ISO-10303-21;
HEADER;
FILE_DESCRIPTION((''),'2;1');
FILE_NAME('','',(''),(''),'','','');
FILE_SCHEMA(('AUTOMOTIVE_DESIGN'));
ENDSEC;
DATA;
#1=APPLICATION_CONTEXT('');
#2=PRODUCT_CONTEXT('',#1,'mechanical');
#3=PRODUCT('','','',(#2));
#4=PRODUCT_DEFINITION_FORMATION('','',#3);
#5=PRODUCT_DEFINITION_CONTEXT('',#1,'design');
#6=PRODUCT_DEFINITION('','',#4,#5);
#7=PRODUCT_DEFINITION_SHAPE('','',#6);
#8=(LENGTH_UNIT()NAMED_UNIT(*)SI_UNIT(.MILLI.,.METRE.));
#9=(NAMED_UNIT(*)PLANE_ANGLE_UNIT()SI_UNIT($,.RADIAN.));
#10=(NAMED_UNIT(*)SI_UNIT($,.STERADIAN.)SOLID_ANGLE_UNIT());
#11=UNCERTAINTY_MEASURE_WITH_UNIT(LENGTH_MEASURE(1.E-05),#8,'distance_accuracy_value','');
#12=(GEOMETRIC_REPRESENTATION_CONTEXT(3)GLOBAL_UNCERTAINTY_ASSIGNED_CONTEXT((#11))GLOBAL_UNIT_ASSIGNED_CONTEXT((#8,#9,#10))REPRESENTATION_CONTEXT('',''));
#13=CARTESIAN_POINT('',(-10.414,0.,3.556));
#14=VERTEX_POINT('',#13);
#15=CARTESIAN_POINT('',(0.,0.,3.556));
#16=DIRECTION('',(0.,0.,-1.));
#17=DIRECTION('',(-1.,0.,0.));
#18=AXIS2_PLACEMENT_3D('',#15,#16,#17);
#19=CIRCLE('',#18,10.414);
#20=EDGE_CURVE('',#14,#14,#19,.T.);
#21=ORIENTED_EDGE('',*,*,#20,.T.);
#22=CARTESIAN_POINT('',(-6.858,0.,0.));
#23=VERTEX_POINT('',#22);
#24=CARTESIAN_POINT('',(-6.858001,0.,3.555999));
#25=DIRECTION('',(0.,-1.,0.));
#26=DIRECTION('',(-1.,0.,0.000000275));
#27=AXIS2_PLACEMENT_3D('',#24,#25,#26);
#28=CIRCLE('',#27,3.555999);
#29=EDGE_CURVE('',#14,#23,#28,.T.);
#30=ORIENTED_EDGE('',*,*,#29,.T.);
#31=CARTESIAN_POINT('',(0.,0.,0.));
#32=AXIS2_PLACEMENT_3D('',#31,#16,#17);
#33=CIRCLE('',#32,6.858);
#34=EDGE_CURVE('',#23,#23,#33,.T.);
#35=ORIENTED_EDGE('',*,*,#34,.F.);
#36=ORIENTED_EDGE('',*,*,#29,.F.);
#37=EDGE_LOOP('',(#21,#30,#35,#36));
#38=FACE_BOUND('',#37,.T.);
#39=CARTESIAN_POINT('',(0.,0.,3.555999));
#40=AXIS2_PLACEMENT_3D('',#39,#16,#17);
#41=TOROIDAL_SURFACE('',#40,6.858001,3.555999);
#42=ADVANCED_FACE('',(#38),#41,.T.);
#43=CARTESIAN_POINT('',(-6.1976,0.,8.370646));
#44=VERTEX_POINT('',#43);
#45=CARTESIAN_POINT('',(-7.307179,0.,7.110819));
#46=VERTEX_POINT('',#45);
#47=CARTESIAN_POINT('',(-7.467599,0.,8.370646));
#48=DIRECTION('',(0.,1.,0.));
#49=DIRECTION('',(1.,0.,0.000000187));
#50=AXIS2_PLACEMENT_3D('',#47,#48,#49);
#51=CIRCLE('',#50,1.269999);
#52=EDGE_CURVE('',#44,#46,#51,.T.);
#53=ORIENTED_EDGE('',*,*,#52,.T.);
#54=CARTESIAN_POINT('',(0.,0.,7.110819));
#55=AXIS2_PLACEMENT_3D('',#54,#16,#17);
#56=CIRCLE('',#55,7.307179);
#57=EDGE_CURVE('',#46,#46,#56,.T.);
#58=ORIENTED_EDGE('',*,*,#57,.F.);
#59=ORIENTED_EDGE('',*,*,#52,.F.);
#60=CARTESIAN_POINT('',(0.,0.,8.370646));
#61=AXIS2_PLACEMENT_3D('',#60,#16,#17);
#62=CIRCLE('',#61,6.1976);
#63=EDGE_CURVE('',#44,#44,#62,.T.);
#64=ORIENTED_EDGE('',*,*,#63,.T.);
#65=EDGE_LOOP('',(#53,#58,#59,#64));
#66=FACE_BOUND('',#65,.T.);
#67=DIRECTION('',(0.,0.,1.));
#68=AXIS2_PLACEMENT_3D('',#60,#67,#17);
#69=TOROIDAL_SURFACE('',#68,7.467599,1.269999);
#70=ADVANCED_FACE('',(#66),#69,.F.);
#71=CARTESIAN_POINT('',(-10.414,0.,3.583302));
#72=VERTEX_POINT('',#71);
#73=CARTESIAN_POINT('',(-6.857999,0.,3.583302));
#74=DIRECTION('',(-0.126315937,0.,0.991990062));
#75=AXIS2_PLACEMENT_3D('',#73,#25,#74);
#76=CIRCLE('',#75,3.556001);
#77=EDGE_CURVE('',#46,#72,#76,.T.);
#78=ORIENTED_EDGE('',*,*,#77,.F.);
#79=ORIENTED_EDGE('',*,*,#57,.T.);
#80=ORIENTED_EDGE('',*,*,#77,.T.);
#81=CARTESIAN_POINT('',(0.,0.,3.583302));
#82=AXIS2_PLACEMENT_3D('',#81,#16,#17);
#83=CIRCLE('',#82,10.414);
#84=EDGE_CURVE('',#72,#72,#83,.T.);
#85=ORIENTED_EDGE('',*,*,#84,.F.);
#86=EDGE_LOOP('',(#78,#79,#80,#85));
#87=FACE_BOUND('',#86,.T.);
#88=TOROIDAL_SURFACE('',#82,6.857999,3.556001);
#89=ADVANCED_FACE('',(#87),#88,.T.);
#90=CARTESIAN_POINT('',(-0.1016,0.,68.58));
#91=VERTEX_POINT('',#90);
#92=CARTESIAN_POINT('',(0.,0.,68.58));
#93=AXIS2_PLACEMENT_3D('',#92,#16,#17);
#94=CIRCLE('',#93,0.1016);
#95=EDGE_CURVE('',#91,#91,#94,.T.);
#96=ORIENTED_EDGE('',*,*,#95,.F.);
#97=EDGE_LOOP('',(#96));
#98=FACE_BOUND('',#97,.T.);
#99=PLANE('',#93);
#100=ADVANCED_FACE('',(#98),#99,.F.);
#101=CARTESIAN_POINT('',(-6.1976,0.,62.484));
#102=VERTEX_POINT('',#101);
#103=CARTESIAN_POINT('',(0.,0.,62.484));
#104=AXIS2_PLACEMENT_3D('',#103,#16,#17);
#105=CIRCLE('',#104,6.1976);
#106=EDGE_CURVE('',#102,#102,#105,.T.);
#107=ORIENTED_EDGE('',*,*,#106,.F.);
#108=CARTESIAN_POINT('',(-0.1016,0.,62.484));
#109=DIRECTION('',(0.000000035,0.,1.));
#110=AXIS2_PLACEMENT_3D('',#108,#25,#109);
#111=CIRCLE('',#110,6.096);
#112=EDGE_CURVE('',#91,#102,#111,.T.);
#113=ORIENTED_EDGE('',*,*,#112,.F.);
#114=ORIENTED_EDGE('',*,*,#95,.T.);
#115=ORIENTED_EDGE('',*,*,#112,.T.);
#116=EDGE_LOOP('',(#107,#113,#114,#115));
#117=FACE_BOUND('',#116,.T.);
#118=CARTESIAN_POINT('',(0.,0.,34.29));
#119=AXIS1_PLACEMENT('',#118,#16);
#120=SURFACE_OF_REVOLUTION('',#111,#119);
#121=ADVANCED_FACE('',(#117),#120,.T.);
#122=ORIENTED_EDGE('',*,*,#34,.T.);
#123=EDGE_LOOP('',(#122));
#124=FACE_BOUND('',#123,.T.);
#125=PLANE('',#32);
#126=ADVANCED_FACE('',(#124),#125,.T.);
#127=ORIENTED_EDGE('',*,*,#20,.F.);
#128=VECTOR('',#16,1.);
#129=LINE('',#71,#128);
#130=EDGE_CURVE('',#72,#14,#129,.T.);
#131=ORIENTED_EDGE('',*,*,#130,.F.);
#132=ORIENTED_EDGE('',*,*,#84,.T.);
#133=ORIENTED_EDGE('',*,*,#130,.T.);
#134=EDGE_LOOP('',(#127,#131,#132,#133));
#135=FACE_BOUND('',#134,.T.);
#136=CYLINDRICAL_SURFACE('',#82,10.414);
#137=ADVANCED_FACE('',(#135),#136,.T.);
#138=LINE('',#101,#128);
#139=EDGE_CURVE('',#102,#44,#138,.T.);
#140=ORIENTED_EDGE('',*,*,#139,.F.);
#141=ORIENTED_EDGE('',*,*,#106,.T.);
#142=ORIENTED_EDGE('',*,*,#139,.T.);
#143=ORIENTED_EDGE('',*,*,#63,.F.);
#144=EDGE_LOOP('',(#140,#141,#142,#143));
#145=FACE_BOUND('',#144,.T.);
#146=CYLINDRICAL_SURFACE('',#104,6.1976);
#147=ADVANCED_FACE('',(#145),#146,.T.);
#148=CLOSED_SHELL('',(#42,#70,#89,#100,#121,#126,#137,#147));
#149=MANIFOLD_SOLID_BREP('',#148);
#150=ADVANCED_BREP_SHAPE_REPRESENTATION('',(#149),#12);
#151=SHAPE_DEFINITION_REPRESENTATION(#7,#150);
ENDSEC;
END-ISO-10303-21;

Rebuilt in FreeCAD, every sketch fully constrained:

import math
import FreeCAD as App
import Part
import Sketcher
Q = App.Units.Quantity

doc = App.newDocument("Part")
body = doc.addObject("PartDesign::Body", "Body")

# Sketch on XZ plane
sketch1 = doc.addObject("Sketcher::SketchObject", "Sketch")
body.addObject(sketch1)
sketch1.AttachmentSupport = (doc.XZ_Plane, [""])
sketch1.MapMode = "FlatFace"
sketch1.addGeometry([
    Part.LineSegment(App.Vector(-6.858, 0, 0), App.Vector(0, 0, 0)),  # 0
    Part.LineSegment(App.Vector(0, 0, 0), App.Vector(0, 68.58, 0)),  # 1
    Part.LineSegment(App.Vector(0, 68.58, 0), App.Vector(-0.1016, 68.58, 0)),  # 2
    Part.ArcOfCircle(Part.Circle(App.Vector(-0.1016, 62.484, 0), App.Vector(0, 0, 1), 6.096), math.radians(89.999998), math.radians(180.000002)),  # 3
    Part.LineSegment(App.Vector(-6.1976, 62.484, 0), App.Vector(-6.1976, 8.370646, 0)),  # 4
    Part.ArcOfCircle(Part.Circle(App.Vector(-7.467599, 8.370646, 0), App.Vector(0, 0, 1), 1.269999), math.radians(-82.743284), math.radians(0.000011)),  # 5
    Part.ArcOfCircle(Part.Circle(App.Vector(-6.857999, 3.583302, 0), App.Vector(0, 0, 1), 3.556001), math.radians(97.256756), math.radians(179.999997)),  # 6
    Part.LineSegment(App.Vector(-10.414, 3.583302, 0), App.Vector(-10.414, 3.556, 0)),  # 7
    Part.ArcOfCircle(Part.Circle(App.Vector(-6.858001, 3.555999, 0), App.Vector(0, 0, 1), 3.555999), math.radians(179.999984), math.radians(270.000016)),  # 8
], False)
sketch1.addConstraint([
    Sketcher.Constraint("Coincident", 0, 2, 1, 1),
    Sketcher.Constraint("Coincident", 1, 2, 2, 1),
    Sketcher.Constraint("Tangent", 2, 2, 3, 1),
    Sketcher.Constraint("Tangent", 3, 2, 4, 1),
    Sketcher.Constraint("Tangent", 4, 2, 5, 2),
    Sketcher.Constraint("Tangent", 5, 1, 6, 1),
    Sketcher.Constraint("Tangent", 6, 2, 7, 1),
    Sketcher.Constraint("Tangent", 7, 2, 8, 1),
    Sketcher.Constraint("Tangent", 8, 2, 0, 1),
    Sketcher.Constraint("Horizontal", 0),
    Sketcher.Constraint("Vertical", 1),
    Sketcher.Constraint("Horizontal", 2),
    Sketcher.Constraint("Vertical", 4),
    Sketcher.Constraint("Vertical", 7),
    Sketcher.Constraint("Coincident", 0, 2, -1, 1),
    Sketcher.Constraint("Equal", 6, 8),
    Sketcher.Constraint("Radius", 3, Q("0.24 in")),
    Sketcher.Constraint("Radius", 5, Q("0.05 in")),
    Sketcher.Constraint("Radius", 6, Q("0.14 in")),
    Sketcher.Constraint("DistanceY", 1, 1, 1, 2, Q("2.7 in")),
    Sketcher.Constraint("DistanceX", 0, 1, 0, 2, Q("0.27 in")),
    Sketcher.Constraint("DistanceX", 2, 2, 2, 1, Q("0.004 in")),
    Sketcher.Constraint("DistanceY", -1, 1, 6, 3, 3.583302),
])
revolution = doc.addObject("PartDesign::Revolution", "Revolution")
body.addObject(revolution)
revolution.Profile = sketch1
revolution.ReferenceAxis = (sketch1, ["V_Axis"])
revolution.Angle = 360

doc.recompute()
